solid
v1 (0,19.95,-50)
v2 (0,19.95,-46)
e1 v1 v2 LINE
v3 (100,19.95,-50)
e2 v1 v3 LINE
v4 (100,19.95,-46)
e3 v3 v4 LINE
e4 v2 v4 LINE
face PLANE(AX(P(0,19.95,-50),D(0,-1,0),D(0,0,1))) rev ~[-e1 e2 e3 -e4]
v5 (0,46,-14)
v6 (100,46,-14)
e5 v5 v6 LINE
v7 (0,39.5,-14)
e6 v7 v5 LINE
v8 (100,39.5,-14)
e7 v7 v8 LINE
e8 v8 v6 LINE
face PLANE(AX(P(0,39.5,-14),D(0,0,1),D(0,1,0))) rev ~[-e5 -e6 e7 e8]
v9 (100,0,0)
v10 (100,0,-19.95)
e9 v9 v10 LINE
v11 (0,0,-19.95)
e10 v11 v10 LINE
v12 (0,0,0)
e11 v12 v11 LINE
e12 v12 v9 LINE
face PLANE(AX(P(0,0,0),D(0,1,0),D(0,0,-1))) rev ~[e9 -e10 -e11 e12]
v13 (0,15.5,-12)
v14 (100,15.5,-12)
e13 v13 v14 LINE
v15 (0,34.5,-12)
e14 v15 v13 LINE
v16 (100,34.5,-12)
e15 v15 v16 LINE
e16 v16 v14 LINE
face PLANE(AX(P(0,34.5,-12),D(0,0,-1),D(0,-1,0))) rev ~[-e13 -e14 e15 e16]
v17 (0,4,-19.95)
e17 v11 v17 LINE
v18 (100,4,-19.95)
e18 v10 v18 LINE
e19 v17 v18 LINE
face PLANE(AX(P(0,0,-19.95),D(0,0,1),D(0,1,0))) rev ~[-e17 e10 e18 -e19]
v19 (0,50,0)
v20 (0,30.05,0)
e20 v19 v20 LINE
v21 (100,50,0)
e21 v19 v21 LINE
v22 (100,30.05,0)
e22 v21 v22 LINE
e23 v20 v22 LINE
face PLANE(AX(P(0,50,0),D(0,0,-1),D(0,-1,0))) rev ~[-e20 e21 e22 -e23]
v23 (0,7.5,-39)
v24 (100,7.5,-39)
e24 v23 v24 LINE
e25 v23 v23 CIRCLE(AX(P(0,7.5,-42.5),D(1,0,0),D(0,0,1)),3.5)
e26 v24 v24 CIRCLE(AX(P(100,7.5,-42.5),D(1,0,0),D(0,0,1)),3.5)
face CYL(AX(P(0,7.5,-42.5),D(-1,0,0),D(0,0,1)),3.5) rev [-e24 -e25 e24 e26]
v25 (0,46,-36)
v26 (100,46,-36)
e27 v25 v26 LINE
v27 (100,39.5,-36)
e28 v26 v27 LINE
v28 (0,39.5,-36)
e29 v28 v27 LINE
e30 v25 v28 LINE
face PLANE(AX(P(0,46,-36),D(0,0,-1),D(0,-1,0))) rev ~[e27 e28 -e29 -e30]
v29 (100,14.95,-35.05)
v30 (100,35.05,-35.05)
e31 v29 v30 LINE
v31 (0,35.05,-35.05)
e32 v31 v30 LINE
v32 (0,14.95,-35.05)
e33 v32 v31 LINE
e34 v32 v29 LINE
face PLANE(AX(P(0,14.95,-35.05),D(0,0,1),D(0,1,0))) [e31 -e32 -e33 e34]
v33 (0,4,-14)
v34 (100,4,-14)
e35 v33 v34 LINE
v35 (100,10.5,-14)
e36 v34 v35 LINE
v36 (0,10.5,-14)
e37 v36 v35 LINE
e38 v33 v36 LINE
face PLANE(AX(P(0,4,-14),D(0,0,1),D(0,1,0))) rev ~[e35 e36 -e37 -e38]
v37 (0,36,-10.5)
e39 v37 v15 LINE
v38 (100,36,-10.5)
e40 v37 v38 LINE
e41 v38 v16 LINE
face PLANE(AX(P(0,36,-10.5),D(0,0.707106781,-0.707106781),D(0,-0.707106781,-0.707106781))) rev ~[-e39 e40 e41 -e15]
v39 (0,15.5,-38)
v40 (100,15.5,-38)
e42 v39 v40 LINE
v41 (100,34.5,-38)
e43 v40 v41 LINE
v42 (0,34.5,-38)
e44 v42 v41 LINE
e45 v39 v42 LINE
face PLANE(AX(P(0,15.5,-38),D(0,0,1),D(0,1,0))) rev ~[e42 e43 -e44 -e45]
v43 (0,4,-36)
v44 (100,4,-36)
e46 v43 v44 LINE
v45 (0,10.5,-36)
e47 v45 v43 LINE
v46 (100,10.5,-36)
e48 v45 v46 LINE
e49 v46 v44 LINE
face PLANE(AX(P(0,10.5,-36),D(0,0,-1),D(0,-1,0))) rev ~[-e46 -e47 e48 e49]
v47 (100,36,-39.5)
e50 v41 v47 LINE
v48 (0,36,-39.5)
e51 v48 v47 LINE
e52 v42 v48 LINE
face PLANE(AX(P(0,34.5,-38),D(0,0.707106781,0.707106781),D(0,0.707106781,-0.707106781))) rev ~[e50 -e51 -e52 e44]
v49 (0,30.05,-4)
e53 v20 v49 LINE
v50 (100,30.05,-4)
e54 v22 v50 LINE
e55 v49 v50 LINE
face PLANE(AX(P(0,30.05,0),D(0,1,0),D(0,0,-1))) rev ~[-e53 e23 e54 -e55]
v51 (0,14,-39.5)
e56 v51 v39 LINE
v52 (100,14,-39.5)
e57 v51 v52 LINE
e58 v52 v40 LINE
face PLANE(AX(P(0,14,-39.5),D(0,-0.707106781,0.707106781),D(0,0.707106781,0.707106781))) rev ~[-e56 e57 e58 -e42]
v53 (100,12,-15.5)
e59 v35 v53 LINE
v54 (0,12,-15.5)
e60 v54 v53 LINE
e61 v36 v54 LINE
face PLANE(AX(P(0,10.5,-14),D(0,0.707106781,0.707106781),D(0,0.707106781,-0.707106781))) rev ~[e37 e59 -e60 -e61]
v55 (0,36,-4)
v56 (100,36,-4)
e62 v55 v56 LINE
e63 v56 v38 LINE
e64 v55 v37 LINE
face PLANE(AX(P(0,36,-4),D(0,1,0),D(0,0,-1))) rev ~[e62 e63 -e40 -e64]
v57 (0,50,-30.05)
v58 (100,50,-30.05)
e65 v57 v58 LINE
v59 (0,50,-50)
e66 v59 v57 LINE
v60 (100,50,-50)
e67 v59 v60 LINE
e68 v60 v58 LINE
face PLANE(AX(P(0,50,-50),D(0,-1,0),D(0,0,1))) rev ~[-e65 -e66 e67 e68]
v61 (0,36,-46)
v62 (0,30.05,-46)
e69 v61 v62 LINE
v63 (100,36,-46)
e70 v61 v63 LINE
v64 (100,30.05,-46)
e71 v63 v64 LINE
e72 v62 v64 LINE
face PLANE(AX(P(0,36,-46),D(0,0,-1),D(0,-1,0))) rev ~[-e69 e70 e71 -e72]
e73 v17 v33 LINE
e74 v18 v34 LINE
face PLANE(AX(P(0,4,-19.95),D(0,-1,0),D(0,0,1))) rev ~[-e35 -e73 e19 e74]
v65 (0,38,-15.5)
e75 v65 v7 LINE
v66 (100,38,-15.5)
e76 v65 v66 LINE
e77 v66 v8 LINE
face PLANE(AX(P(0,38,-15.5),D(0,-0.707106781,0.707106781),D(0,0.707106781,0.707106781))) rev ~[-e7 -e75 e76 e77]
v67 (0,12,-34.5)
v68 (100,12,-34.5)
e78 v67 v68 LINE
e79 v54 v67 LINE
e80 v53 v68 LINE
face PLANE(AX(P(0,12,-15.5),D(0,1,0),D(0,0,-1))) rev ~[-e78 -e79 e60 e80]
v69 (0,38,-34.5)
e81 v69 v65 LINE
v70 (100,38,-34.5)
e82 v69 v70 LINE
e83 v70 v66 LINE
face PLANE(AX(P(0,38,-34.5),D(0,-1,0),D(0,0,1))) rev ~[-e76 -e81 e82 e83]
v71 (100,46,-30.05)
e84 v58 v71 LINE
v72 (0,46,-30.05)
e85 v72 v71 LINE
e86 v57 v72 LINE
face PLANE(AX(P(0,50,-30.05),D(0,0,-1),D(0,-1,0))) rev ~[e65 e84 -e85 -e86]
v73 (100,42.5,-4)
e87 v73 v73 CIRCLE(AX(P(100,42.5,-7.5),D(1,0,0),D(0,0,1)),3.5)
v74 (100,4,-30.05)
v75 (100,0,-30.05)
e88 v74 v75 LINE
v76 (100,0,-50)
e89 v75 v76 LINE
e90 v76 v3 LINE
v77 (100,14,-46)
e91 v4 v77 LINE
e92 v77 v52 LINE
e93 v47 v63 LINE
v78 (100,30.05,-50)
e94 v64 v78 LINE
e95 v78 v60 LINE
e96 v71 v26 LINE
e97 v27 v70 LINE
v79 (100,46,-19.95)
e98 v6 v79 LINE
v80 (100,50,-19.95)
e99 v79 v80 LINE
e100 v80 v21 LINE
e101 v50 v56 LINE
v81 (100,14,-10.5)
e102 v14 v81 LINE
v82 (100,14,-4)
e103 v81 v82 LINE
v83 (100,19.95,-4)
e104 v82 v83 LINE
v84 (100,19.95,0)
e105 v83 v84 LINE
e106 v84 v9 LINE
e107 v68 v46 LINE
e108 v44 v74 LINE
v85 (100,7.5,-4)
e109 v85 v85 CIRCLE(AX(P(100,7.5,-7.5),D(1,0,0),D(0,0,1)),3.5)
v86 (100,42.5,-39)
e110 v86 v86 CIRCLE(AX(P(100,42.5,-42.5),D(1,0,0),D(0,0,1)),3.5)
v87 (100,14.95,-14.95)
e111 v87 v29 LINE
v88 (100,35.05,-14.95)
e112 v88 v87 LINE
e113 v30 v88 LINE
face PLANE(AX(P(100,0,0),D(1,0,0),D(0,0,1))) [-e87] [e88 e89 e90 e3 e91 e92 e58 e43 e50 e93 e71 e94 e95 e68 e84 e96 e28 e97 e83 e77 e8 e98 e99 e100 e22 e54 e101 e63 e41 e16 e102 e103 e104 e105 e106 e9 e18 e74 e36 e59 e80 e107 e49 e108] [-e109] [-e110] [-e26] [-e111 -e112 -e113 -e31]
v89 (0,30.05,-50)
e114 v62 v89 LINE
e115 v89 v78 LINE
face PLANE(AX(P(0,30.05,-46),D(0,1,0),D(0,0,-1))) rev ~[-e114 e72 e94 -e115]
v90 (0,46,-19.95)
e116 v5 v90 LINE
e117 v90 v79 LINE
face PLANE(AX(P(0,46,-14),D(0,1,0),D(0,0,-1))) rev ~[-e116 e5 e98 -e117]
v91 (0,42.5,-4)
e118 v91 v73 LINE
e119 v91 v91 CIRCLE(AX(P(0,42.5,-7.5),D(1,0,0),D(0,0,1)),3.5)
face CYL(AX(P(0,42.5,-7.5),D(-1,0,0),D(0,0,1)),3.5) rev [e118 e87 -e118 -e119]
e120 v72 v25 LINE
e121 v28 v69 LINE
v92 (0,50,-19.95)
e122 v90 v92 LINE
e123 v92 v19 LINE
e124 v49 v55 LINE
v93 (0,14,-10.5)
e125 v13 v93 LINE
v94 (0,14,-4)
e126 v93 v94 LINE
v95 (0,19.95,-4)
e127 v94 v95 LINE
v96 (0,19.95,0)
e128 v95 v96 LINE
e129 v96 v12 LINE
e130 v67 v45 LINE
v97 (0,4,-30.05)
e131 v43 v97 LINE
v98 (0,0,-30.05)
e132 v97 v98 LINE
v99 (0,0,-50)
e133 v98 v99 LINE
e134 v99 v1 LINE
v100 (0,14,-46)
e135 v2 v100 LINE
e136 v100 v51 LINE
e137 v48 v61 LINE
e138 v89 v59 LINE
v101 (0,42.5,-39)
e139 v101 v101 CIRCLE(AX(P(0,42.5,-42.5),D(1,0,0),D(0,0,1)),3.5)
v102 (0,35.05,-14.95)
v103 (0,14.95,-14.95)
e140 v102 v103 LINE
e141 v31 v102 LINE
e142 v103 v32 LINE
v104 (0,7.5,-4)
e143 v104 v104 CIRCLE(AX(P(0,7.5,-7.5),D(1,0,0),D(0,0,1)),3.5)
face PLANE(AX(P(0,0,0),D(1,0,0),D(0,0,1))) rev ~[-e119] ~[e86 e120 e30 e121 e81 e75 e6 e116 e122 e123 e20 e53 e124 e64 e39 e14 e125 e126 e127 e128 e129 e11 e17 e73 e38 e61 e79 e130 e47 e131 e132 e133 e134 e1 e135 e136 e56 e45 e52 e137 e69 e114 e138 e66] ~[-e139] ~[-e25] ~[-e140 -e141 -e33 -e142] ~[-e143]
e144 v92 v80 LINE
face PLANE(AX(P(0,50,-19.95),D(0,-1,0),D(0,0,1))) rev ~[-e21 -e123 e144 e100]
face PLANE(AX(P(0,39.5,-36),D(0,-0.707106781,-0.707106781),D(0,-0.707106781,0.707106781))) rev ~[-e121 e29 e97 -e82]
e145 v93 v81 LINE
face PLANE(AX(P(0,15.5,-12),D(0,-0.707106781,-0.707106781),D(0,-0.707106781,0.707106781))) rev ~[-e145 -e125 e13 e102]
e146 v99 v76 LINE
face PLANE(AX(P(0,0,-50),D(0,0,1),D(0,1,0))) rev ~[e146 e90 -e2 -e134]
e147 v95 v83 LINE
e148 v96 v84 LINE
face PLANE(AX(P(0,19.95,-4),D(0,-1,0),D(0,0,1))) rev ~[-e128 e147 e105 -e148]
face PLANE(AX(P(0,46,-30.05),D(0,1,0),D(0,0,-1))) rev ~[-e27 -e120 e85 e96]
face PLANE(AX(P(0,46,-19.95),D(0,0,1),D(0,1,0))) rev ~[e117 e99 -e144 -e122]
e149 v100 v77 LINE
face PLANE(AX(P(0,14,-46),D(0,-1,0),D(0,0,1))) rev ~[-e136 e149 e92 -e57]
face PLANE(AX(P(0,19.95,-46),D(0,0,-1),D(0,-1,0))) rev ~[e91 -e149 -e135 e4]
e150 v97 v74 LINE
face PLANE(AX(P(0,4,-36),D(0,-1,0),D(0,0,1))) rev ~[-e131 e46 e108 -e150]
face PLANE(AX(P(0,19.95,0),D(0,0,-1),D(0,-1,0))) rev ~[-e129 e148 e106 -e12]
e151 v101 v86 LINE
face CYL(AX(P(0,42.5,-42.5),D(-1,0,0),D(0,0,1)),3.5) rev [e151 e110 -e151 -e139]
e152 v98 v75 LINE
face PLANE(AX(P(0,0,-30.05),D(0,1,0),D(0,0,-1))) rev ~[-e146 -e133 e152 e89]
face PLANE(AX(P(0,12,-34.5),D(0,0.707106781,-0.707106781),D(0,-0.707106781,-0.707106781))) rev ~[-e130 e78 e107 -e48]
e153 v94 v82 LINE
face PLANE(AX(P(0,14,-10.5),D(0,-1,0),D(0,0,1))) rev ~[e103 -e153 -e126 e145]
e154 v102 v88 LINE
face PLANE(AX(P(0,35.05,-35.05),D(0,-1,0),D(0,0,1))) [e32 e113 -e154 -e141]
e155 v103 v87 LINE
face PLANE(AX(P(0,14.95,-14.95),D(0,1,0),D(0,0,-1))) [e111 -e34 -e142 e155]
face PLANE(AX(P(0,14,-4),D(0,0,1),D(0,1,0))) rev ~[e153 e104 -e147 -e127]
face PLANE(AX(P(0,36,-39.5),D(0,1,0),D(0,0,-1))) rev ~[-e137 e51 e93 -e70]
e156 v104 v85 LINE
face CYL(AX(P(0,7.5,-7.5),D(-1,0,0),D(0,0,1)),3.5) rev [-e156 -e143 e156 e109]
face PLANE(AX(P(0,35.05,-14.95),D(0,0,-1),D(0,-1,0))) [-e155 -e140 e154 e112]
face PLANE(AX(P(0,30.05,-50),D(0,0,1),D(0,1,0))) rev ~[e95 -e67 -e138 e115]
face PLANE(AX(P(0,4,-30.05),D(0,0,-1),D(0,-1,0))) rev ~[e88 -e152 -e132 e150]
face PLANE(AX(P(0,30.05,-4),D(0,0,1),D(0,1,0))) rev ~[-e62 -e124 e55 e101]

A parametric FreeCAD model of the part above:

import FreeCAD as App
import Part
import Sketcher

V = App.Vector
Q = App.Units.Quantity


def add_polygon(sketch, points):
    """Adds a closed chain of lines whose ends are joined by coincident constraints."""
    first, n = sketch.GeometryCount, len(points)
    for a, b in zip(points, points[1:] + points[:1]):
        sketch.addGeometry(Part.LineSegment(App.Vector(*a, 0), App.Vector(*b, 0)), False)
    for i in range(n):
        sketch.addConstraint(Sketcher.Constraint("Coincident", first + i, 2, first + (i + 1) % n, 1))

doc = App.newDocument("Part")
body = doc.addObject("PartDesign::Body", "Body")

sketch1 = doc.addObject("Sketcher::SketchObject", "Sketch")
body.addObject(sketch1)
sketch1.AttachmentSupport = (doc.YZ_Plane, [""])
sketch1.MapMode = "FlatFace"
add_polygon(sketch1, [(19.9, 0), (0, 0), (0, -19.9), (4, -19.9), (4, -14), (10.5, -14), (12, -15.5), (12, -34.5), (10.5, -36), (4, -36), (4, -30.1), (0, -30.1), (0, -50), (19.9, -50), (19.9, -46), (14, -46), (14, -39.5), (15.5, -38), (34.5, -38), (36, -39.5), (36, -46), (30.1, -46), (30.1, -50), (50, -50), (50, -30.1), (46, -30.1), (46, -36), (39.5, -36), (38, -34.5), (38, -15.5), (39.5, -14), (46, -14), (46, -19.9), (50, -19.9), (50, 0), (30.1, 0), (30.1, -4), (36, -4), (36, -10.5), (34.5, -12), (15.5, -12), (14, -10.5), (14, -4), (19.9, -4)])
sketch1.addGeometry(Part.Circle(V(42.5, -42.5, 0), V(0, 0, 1), 3.5), False)
sketch1.addGeometry(Part.Circle(V(42.5, -7.5, 0), V(0, 0, 1), 3.5), False)
sketch1.addGeometry(Part.Circle(V(7.5, -42.5, 0), V(0, 0, 1), 3.5), False)
add_polygon(sketch1, [(14.9, -14.9), (35, -14.9), (35, -35), (14.9, -35)])
sketch1.addGeometry(Part.Circle(V(7.5, -7.5, 0), V(0, 0, 1), 3.5), False)
sketch1.addConstraint([
    Sketcher.Constraint("Horizontal", 0),
    Sketcher.Constraint("Vertical", 1),
    Sketcher.Constraint("Horizontal", 2),
    Sketcher.Constraint("Vertical", 3),
    Sketcher.Constraint("Horizontal", 4),
    Sketcher.Constraint("Vertical", 6),
    Sketcher.Constraint("Horizontal", 8),
    Sketcher.Constraint("Vertical", 9),
    Sketcher.Constraint("Horizontal", 10),
    Sketcher.Constraint("Vertical", 11),
    Sketcher.Constraint("Horizontal", 12),
    Sketcher.Constraint("Vertical", 13),
    Sketcher.Constraint("Horizontal", 14),
    Sketcher.Constraint("Vertical", 15),
    Sketcher.Constraint("Horizontal", 17),
    Sketcher.Constraint("Vertical", 19),
    Sketcher.Constraint("Horizontal", 20),
    Sketcher.Constraint("Vertical", 21),
    Sketcher.Constraint("Horizontal", 22),
    Sketcher.Constraint("Vertical", 23),
    Sketcher.Constraint("Horizontal", 24),
    Sketcher.Constraint("Vertical", 25),
    Sketcher.Constraint("Horizontal", 26),
    Sketcher.Constraint("Vertical", 28),
    Sketcher.Constraint("Horizontal", 30),
    Sketcher.Constraint("Vertical", 31),
    Sketcher.Constraint("Horizontal", 32),
    Sketcher.Constraint("Vertical", 33),
    Sketcher.Constraint("Horizontal", 34),
    Sketcher.Constraint("Vertical", 35),
    Sketcher.Constraint("Horizontal", 36),
    Sketcher.Constraint("Vertical", 37),
    Sketcher.Constraint("Horizontal", 39),
    Sketcher.Constraint("Vertical", 41),
    Sketcher.Constraint("Horizontal", 42),
    Sketcher.Constraint("Vertical", 43),
    Sketcher.Constraint("Horizontal", 47),
    Sketcher.Constraint("Vertical", 48),
    Sketcher.Constraint("Horizontal", 49),
    Sketcher.Constraint("Vertical", 50),
    Sketcher.Constraint("Coincident", 0, 2, -1, 1),
    Sketcher.Constraint("Equal", 44, 45),
    Sketcher.Constraint("Equal", 45, 46),
    Sketcher.Constraint("Equal", 46, 51),
    Sketcher.Constraint("PointOnObject", 10, 2, -2),
    Sketcher.Constraint("PointOnObject", 33, 2, -1),
    Sketcher.Constraint("Perpendicular", 5, 7),
    Sketcher.Constraint("Parallel", 7, 16),
    Sketcher.Constraint("Perpendicular", 16, 18),
    Sketcher.Constraint("Parallel", 18, 27),
    Sketcher.Constraint("Perpendicular", 27, 29),
    Sketcher.Constraint("Parallel", 29, 38),
    Sketcher.Constraint("Perpendicular", 38, 40),
    Sketcher.Constraint("Horizontal", 44, 3, 46, 3),
    Sketcher.Constraint("Horizontal", 45, 3, 51, 3),
    Sketcher.Constraint("Horizontal", 15, 2, 18, 2),
    Sketcher.Constraint("Horizontal", 14, 2, 19, 2),
    Sketcher.Constraint("Horizontal", 12, 2, 21, 2),
    Sketcher.Constraint("Horizontal", 10, 2, 23, 2),
    Sketcher.Constraint("Horizontal", 8, 2, 25, 2),
    Sketcher.Constraint("Horizontal", 6, 2, 27, 2),
    Sketcher.Constraint("Horizontal", 5, 2, 28, 2),
    Sketcher.Constraint("Horizontal", 4, 2, 29, 2),
    Sketcher.Constraint("Horizontal", 2, 2, 31, 2),
    Sketcher.Constraint("Horizontal", 37, 2, 40, 2),
    Sketcher.Constraint("Horizontal", 36, 2, 41, 2),
    Sketcher.Constraint("Vertical", 44, 3, 45, 3),
    Sketcher.Constraint("Vertical", 46, 3, 51, 3),
    Sketcher.Constraint("Vertical", 4, 2, 7, 2),
    Sketcher.Constraint("Vertical", 3, 2, 8, 2),
    Sketcher.Constraint("Vertical", 26, 2, 29, 2),
    Sketcher.Constraint("Vertical", 25, 2, 30, 2),
    Sketcher.Constraint("Vertical", 23, 2, 32, 2),
    Sketcher.Constraint("Vertical", 21, 2, 34, 2),
    Sketcher.Constraint("Vertical", 19, 2, 36, 2),
    Sketcher.Constraint("Vertical", 17, 2, 38, 2),
    Sketcher.Constraint("Vertical", 16, 2, 39, 2),
    Sketcher.Constraint("Vertical", 13, 2, 42, 2),
    Sketcher.Constraint("Equal", 14, 20),
    Sketcher.Constraint("Equal", 12, 22),
    Sketcher.Constraint("Equal", 10, 24),
    Sketcher.Constraint("Equal", 8, 26),
    Sketcher.Constraint("Equal", 34, 1),
    Sketcher.Constraint("Equal", 42, 3),
    Sketcher.Constraint("Equal", 39, 6),
    Sketcher.Constraint("Equal", 3, 9),
    Sketcher.Constraint("Equal", 1, 11),
    Sketcher.Constraint("Equal", 32, 13),
    Sketcher.Constraint("Equal", 30, 15),
    Sketcher.Constraint("Equal", 21, 35),
    Sketcher.Constraint("Equal", 19, 37),
    Sketcher.Constraint("Equal", 49, 48),
    Sketcher.Constraint("Equal", 7, 16),
    Sketcher.Constraint("Diameter", 44, Q("7 mm")),
    Sketcher.Constraint("DistanceX", 2, 1, 2, 2, Q("4 mm")),
    Sketcher.Constraint("DistanceX", 17, 1, 17, 2, Q("19 mm")),
    Sketcher.Constraint("DistanceX", 4, 1, 4, 2, Q("6.5 mm")),
    Sketcher.Constraint("DistanceX", 47, 1, 47, 2, Q("20.1 mm")),
    Sketcher.Constraint("DistanceY", 3, 2, -1, 1, Q("14 mm")),
    Sketcher.Constraint("DistanceX", -1, 1, 5, 2, Q("12 mm")),
    Sketcher.Constraint("DistanceY", 44, 3, 45, 3, Q("35 mm")),
    Sketcher.Constraint("DistanceX", 46, 3, 44, 3, Q("35 mm")),
    Sketcher.Constraint("DistanceX", 51, 3, 4, 2, Q("3 mm")),
    Sketcher.Constraint("DistanceY", 5, 2, 51, 3, Q("8 mm")),
    Sketcher.Constraint("DistanceX", 0, 2, 0, 1, Q("19.95 mm")),
    Sketcher.Constraint("DistanceX", -1, 1, 47, 2, Q("35.05 mm")),
    Sketcher.Constraint("DistanceY", 47, 2, -1, 1, Q("14.95 mm")),
])
pad1 = doc.addObject("PartDesign::Pad", "Pad")
body.addObject(pad1)
pad1.Profile = sketch1
pad1.Length = 100

doc.recompute()
